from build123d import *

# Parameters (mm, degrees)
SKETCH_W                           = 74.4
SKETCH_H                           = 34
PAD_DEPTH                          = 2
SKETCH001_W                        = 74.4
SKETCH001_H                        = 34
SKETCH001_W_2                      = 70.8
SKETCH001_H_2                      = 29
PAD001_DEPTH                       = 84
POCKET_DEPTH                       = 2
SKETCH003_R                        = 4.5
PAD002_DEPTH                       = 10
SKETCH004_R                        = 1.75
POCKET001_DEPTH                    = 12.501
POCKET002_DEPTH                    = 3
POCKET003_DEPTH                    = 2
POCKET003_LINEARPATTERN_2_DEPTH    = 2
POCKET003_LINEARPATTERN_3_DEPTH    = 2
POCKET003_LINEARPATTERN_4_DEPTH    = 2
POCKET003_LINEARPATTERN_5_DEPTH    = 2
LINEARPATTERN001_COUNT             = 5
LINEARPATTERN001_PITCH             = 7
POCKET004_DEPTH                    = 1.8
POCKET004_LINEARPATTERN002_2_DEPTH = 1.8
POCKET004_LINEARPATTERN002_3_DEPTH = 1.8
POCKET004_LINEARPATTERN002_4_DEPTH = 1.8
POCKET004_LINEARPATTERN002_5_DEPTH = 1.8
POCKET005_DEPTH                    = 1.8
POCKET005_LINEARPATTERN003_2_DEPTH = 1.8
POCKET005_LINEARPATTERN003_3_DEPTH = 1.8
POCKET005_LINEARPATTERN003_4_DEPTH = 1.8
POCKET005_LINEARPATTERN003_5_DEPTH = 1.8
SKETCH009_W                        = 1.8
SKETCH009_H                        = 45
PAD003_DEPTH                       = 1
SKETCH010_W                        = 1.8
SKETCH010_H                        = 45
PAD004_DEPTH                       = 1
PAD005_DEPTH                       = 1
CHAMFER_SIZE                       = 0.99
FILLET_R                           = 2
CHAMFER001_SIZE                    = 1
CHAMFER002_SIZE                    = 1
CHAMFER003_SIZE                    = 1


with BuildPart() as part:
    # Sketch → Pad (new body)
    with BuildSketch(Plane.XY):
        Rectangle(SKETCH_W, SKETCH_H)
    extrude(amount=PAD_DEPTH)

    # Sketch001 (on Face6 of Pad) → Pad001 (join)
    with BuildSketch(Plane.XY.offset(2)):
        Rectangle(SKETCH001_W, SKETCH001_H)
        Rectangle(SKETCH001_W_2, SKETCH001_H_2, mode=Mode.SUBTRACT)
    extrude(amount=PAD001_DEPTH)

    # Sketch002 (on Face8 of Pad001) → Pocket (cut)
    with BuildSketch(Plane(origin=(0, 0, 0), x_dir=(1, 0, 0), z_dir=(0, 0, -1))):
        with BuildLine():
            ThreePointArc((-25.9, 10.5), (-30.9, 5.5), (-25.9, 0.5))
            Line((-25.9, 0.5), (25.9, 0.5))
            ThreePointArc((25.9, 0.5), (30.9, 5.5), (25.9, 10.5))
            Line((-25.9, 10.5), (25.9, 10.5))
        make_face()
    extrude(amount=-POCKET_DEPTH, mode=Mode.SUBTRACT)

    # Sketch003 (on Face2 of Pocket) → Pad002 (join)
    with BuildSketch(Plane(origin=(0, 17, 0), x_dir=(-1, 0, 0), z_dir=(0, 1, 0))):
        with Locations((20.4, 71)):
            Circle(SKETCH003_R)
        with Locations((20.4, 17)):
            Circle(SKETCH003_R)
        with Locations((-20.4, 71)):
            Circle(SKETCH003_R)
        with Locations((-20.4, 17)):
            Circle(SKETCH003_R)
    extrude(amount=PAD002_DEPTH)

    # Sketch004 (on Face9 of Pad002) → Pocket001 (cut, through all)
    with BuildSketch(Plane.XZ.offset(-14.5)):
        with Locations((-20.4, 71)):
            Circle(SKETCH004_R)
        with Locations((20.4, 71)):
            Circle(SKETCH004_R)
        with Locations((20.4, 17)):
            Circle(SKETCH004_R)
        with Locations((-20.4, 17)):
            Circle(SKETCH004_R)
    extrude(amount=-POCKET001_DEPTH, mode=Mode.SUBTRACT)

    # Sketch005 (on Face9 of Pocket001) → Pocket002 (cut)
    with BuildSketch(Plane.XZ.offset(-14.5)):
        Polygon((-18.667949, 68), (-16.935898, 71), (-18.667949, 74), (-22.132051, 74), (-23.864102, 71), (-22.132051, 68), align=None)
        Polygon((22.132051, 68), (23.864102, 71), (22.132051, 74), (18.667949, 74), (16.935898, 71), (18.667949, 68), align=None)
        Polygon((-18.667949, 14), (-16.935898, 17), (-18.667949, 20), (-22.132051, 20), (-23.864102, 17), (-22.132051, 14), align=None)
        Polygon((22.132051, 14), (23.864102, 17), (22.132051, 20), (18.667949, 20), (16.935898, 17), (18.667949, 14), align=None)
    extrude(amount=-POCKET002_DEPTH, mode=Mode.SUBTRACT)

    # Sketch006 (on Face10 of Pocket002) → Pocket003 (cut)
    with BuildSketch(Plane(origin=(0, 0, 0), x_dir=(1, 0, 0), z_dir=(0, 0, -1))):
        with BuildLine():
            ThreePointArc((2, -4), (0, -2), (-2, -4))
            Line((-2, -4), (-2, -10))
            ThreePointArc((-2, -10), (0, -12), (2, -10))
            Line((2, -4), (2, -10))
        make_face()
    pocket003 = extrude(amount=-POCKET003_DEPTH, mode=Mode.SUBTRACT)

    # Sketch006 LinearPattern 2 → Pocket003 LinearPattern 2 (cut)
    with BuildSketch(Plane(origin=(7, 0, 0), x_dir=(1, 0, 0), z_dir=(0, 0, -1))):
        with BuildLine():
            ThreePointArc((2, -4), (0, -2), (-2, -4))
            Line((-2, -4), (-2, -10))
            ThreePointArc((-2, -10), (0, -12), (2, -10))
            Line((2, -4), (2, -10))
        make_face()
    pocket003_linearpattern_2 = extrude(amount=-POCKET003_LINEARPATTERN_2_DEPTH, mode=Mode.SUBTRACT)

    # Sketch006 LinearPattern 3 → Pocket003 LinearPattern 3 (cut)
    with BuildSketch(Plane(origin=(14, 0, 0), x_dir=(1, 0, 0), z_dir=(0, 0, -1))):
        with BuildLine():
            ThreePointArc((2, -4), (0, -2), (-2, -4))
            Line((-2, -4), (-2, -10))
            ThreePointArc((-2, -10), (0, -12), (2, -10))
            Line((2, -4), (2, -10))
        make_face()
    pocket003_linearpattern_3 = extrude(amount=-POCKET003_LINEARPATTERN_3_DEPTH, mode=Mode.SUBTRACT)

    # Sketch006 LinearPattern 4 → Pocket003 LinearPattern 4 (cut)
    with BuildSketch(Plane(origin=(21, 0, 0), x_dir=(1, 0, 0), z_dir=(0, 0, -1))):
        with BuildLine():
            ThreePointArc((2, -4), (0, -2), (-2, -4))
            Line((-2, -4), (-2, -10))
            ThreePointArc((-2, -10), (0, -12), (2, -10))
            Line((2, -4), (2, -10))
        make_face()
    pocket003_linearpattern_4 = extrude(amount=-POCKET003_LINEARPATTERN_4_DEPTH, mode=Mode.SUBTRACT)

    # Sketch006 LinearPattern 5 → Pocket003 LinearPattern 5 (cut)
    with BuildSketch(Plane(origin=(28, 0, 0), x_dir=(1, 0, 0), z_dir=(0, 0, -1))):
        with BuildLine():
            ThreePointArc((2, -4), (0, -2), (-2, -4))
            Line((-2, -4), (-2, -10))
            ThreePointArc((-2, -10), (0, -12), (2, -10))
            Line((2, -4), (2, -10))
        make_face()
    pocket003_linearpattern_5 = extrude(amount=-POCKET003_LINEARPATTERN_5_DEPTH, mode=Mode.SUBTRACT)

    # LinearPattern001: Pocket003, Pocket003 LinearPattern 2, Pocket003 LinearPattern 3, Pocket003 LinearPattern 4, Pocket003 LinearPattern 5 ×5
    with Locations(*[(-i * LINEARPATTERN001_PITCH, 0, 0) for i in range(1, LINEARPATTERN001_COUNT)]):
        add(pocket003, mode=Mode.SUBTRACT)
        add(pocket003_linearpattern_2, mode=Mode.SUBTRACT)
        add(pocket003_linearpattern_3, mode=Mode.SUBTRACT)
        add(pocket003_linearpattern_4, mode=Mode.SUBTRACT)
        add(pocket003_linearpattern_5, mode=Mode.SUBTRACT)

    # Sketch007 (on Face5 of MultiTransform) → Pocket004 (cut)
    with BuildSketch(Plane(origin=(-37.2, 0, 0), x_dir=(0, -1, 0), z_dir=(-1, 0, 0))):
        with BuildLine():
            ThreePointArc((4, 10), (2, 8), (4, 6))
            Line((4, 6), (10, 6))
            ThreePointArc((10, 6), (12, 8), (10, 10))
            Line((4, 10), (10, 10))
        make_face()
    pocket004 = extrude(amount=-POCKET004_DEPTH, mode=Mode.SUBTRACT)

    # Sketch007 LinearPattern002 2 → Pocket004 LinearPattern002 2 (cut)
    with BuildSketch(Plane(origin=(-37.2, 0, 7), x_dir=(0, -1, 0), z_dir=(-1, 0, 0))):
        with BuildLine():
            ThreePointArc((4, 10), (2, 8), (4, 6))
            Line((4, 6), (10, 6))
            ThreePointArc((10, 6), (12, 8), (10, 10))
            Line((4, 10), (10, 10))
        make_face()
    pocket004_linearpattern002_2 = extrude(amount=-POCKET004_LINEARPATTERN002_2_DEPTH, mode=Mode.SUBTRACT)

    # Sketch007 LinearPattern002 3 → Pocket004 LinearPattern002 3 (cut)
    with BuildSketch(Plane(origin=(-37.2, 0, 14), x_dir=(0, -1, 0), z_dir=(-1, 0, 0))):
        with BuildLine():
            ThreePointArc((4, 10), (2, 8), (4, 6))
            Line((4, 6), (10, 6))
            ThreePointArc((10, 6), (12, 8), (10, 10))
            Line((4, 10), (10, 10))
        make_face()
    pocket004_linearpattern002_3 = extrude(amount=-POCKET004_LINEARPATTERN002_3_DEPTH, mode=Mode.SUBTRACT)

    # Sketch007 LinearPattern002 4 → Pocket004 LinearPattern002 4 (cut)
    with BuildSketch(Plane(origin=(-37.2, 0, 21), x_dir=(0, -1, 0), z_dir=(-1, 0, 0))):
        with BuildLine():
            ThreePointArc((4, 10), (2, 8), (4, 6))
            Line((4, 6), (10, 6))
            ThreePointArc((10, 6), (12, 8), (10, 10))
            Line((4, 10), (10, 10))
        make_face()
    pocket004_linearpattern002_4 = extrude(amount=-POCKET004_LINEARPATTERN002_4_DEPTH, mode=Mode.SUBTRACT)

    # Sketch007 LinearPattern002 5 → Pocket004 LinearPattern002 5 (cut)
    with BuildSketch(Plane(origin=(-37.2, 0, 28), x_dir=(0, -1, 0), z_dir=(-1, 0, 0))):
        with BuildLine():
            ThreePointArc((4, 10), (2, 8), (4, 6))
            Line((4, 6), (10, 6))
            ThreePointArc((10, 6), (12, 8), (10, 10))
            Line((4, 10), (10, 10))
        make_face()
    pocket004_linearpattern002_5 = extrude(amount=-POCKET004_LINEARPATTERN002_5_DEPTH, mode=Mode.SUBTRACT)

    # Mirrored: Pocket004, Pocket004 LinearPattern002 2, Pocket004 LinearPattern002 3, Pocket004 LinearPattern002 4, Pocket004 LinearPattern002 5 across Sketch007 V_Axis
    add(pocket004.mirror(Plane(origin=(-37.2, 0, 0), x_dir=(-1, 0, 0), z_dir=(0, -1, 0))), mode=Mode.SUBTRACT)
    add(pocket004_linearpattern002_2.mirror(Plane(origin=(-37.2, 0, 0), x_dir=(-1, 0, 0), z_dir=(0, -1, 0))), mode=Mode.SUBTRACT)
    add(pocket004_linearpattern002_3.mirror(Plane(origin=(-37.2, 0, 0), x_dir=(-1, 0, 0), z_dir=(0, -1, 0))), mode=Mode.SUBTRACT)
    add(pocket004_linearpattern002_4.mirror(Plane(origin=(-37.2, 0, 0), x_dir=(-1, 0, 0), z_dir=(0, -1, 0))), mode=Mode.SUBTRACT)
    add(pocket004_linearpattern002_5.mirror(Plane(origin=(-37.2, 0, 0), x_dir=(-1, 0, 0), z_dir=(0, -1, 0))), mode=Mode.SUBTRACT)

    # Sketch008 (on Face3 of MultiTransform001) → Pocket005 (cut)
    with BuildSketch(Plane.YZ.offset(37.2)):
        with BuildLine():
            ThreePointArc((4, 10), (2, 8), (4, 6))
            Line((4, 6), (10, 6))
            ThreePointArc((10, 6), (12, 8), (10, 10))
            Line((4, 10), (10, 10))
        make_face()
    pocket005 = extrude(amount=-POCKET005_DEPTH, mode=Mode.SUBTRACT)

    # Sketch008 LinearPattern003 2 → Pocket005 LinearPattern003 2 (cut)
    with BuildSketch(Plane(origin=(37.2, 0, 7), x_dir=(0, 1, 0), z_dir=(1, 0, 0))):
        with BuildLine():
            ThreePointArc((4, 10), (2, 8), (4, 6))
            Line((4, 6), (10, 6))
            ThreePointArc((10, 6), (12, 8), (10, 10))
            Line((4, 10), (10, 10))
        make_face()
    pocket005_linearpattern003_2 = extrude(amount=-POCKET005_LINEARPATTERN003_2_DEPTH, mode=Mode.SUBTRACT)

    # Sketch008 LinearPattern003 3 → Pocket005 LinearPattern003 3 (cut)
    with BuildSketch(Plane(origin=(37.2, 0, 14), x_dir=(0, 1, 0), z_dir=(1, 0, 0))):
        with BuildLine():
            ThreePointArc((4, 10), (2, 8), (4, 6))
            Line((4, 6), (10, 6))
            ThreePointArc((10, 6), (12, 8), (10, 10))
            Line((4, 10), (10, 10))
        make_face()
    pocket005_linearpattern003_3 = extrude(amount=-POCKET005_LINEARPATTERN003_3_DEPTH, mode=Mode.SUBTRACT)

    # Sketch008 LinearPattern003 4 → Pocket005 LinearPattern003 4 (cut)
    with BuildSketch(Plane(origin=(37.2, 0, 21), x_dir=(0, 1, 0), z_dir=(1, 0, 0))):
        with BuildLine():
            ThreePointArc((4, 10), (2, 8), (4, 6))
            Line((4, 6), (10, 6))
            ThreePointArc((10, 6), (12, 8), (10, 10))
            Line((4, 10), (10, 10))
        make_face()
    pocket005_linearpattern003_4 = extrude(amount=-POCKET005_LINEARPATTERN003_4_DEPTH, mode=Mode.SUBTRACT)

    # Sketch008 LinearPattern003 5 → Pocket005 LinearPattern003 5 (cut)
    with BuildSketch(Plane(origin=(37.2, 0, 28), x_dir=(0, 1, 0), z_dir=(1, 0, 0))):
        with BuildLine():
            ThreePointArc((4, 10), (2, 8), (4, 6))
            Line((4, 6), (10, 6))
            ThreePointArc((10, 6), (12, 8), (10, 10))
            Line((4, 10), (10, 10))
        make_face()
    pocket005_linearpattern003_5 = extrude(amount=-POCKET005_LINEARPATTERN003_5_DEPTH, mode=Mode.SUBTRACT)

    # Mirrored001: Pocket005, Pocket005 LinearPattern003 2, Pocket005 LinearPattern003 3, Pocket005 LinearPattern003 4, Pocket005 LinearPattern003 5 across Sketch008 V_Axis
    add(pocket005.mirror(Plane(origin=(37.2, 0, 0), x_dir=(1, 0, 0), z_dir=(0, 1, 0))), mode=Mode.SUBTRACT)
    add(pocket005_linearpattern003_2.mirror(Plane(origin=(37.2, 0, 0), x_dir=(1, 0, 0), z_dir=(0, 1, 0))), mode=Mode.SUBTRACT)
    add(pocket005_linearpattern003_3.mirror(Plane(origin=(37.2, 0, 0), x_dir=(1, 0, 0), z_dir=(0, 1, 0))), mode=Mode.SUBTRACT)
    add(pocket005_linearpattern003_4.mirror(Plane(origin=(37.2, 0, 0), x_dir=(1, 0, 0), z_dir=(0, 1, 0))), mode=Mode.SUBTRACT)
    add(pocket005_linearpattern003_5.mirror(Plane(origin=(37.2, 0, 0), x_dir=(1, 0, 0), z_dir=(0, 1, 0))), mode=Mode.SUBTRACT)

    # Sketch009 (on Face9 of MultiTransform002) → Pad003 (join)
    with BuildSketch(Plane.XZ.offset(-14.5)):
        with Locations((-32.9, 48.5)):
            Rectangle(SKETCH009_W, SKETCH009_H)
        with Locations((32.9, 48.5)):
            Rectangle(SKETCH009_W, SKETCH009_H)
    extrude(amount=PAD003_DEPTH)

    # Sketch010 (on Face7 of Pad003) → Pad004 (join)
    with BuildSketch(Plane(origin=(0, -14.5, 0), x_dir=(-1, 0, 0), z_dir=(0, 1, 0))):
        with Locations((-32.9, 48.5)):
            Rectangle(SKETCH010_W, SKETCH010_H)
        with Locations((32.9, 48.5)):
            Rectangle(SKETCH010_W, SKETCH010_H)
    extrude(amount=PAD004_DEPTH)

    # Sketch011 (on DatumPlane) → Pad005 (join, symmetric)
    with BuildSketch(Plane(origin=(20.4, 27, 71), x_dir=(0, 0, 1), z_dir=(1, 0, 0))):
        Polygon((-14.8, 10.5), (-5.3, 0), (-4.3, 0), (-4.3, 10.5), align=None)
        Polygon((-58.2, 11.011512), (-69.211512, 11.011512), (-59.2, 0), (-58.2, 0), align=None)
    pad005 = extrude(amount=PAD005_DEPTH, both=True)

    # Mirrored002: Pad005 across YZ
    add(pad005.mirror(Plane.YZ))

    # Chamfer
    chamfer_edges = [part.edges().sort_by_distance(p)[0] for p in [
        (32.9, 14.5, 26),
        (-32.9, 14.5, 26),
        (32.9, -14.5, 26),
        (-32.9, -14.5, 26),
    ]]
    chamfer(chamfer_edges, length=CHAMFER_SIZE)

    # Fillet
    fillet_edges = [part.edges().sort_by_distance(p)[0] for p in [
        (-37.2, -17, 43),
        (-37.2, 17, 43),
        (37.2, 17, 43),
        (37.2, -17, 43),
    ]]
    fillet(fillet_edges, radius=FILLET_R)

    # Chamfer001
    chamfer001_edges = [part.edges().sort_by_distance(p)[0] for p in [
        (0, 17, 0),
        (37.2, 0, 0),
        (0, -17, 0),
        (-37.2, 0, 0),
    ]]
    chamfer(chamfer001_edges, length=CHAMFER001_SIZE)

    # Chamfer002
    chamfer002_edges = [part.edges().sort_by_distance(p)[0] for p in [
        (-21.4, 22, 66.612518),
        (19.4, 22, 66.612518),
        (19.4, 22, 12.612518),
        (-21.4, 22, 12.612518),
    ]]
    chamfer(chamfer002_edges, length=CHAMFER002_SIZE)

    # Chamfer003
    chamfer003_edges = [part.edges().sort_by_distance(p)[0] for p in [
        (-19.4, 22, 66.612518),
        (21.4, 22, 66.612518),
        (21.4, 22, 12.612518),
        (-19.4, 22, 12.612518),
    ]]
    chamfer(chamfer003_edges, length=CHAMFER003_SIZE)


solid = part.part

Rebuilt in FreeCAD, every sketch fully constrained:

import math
import FreeCAD as App
import Part
import Sketcher

V = App.Vector
Q = App.Units.Quantity


def edges_at(feature, points):
    """Names of the edges that pass closest to the given points."""
    edges = feature.Shape.Edges
    near = lambda p: min(range(len(edges)), key=lambda i: edges[i].distToShape(Part.Vertex(*p))[0])
    return sorted({f"Edge{near(p) + 1}" for p in points})


def add_polygon(sketch, points):
    """Adds a closed chain of lines whose ends are joined by coincident constraints."""
    first, n = sketch.GeometryCount, len(points)
    for a, b in zip(points, points[1:] + points[:1]):
        sketch.addGeometry(Part.LineSegment(App.Vector(*a, 0), App.Vector(*b, 0)), False)
    for i in range(n):
        sketch.addConstraint(Sketcher.Constraint("Coincident", first + i, 2, first + (i + 1) % n, 1))

doc = App.newDocument("Part")
body = doc.addObject("PartDesign::Body", "Body")

# Sketch on XY plane
sketch1 = body.newObject("Sketcher::SketchObject", "Sketch")
sketch1.AttachmentSupport = (doc.getObject("XY_Plane"), [""])
sketch1.MapMode = "FlatFace"
add_polygon(sketch1, [(-37, 17), (-37, -17), (37, -17), (37, 17)])  # lines 0-3
sketch1.addConstraint([
    Sketcher.Constraint("Vertical", 0),
    Sketcher.Constraint("Horizontal", 1),
    Sketcher.Constraint("Vertical", 2),
    Sketcher.Constraint("Horizontal", 3),
    Sketcher.Constraint("Symmetric", 0, 2, 2, 2, -1, 1),
    Sketcher.Constraint("DistanceY", 0, 2, 0, 1, 34.0),
    Sketcher.Constraint("DistanceX", 1, 1, 1, 2, 74.4),
])
pad1 = body.newObject("PartDesign::Pad", "Pad")
pad1.Profile = sketch1
pad1.Length = 2

# Sketch on XY plane
sketch2 = body.newObject("Sketcher::SketchObject", "Sketch001")
sketch2.AttachmentSupport = (doc.getObject("XY_Plane"), [""])
sketch2.MapMode = "FlatFace"
sketch2.AttachmentOffset = App.Placement(V(0, 0, 2), App.Rotation())
add_polygon(sketch2, [(-37, 17), (-37, -17), (37, -17), (37, 17)])  # lines 0-3
add_polygon(sketch2, [(35, -14), (-35, -14), (-35, 14), (35, 14)])  # lines 4-7
sketch2.addConstraint([
    Sketcher.Constraint("Vertical", 0),
    Sketcher.Constraint("Horizontal", 1),
    Sketcher.Constraint("Vertical", 2),
    Sketcher.Constraint("Horizontal", 3),
    Sketcher.Constraint("Horizontal", 4),
    Sketcher.Constraint("Vertical", 5),
    Sketcher.Constraint("Horizontal", 6),
    Sketcher.Constraint("Vertical", 7),
    Sketcher.Constraint("Symmetric", 0, 2, 2, 2, -1, 1),
    Sketcher.Constraint("Symmetric", 4, 2, 6, 2, -1, 1),
    Sketcher.Constraint("DistanceY", 0, 2, 0, 1, 34.0),
    Sketcher.Constraint("DistanceY", 5, 1, 5, 2, 29.0),
    Sketcher.Constraint("DistanceX", 1, 1, 1, 2, 74.4),
    Sketcher.Constraint("DistanceX", 4, 2, 4, 1, 70.8),
])
pad2 = body.newObject("PartDesign::Pad", "Pad001")
pad2.Profile = sketch2
pad2.Length = 84

# Sketch on XY plane
sketch3 = body.newObject("Sketcher::SketchObject", "Sketch002")
sketch3.AttachmentSupport = (doc.getObject("XY_Plane"), [""])
sketch3.MapMode = "FlatFace"
sketch3.addGeometry([
    Part.ArcOfCircle(Part.Circle(V(-26, -6, 0), V(0, 0, 1), 5), math.radians(90), math.radians(270)),
    Part.LineSegment(V(-26, 0, 0), V(26, 0, 0)),
    Part.ArcOfCircle(Part.Circle(V(26, -6, 0), V(0, 0, 1), 5), math.radians(-90), math.radians(90)),
    Part.LineSegment(V(26, -10, 0), V(-26, -10, 0)),
], False)
sketch3.addConstraint([
    Sketcher.Constraint("Tangent", 0, 1, 1, 1),
    Sketcher.Constraint("Tangent", 1, 2, 2, 2),
    Sketcher.Constraint("Tangent", 2, 1, 3, 1),
    Sketcher.Constraint("Tangent", 3, 2, 0, 2),
    Sketcher.Constraint("Horizontal", 1),
    Sketcher.Constraint("Horizontal", 3),
    Sketcher.Constraint("Radius", 0, 5.0),
    Sketcher.Constraint("DistanceX", 1, 1, 1, 2, 51.8),
    Sketcher.Constraint("DistanceX", 0, 3, -1, 1, 25.9),
    Sketcher.Constraint("DistanceY", 0, 3, -1, 1, 5.5),
])
pocket1 = body.newObject("PartDesign::Pocket", "Pocket")
pocket1.Profile = sketch3
pocket1.Length = 2
pocket1.Reversed = True

# Sketch on XZ plane
sketch4 = body.newObject("Sketcher::SketchObject", "Sketch003")
sketch4.AttachmentSupport = (doc.getObject("XZ_Plane"), [""])
sketch4.MapMode = "FlatFace"
sketch4.AttachmentOffset = App.Placement(V(0, 0, -17), App.Rotation())
sketch4.addGeometry([
    Part.Circle(V(-20.4, 71, 0), V(0, 0, 1), 4.5),
    Part.Circle(V(-20.4, 17, 0), V(0, 0, 1), 4.5),
    Part.Circle(V(20.4, 71, 0), V(0, 0, 1), 4.5),
    Part.Circle(V(20.4, 17, 0), V(0, 0, 1), 4.5),
], False)
sketch4.addConstraint([
    Sketcher.Constraint("Equal", 0, 1),
    Sketcher.Constraint("Equal", 1, 2),
    Sketcher.Constraint("Equal", 2, 3),
    Sketcher.Constraint("Symmetric", 0, 3, 2, 3, -2),
    Sketcher.Constraint("Symmetric", 1, 3, 3, 3, -2),
    Sketcher.Constraint("Vertical", 0, 3, 1, 3),
    Sketcher.Constraint("Diameter", 0, 9.0),
    Sketcher.Constraint("DistanceY", -1, 1, 0, 3, 71.0),
    Sketcher.Constraint("DistanceY", -1, 1, 1, 3, 17.0),
    Sketcher.Constraint("DistanceX", 0, 3, -1, 1, 20.4),
])
pad3 = body.newObject("PartDesign::Pad", "Pad002")
pad3.Profile = sketch4
pad3.Length = 10
pad3.Reversed = True

# Sketch on XZ plane
sketch5 = body.newObject("Sketcher::SketchObject", "Sketch004")
sketch5.AttachmentSupport = (doc.getObject("XZ_Plane"), [""])
sketch5.MapMode = "FlatFace"
sketch5.AttachmentOffset = App.Placement(V(0, 0, -14.5), App.Rotation())
sketch5.addGeometry([
    Part.Circle(V(-20.4, 71, 0), V(0, 0, 1), 1.8),
    Part.Circle(V(20.4, 71, 0), V(0, 0, 1), 1.8),
    Part.Circle(V(20.4, 17, 0), V(0, 0, 1), 1.8),
    Part.Circle(V(-20.4, 17, 0), V(0, 0, 1), 1.8),
], False)
sketch5.addConstraint([
    Sketcher.Constraint("Equal", 0, 1),
    Sketcher.Constraint("Equal", 1, 2),
    Sketcher.Constraint("Equal", 2, 3),
    Sketcher.Constraint("Symmetric", 0, 3, 1, 3, -2),
    Sketcher.Constraint("Symmetric", 2, 3, 3, 3, -2),
    Sketcher.Constraint("Vertical", 1, 3, 2, 3),
    Sketcher.Constraint("Diameter", 0, 3.5),
    Sketcher.Constraint("DistanceY", -1, 1, 0, 3, 71.0),
    Sketcher.Constraint("DistanceY", -1, 1, 2, 3, 17.0),
    Sketcher.Constraint("DistanceX", 0, 3, -1, 1, 20.4),
])
pocket2 = body.newObject("PartDesign::Pocket", "Pocket001")
pocket2.Profile = sketch5
pocket2.Type = "ThroughAll"

# Sketch on XZ plane
sketch6 = body.newObject("Sketcher::SketchObject", "Sketch005")
sketch6.AttachmentSupport = (doc.getObject("XZ_Plane"), [""])
sketch6.MapMode = "FlatFace"
sketch6.AttachmentOffset = App.Placement(V(0, 0, -14.5), App.Rotation())
add_polygon(sketch6, [(-18.7, 68), (-16.9, 71), (-18.7, 74), (-22.1, 74), (-23.9, 71), (-22.1, 68)])  # lines 0-5
add_polygon(sketch6, [(22.1, 68), (23.9, 71), (22.1, 74), (18.7, 74), (16.9, 71), (18.7, 68)])  # lines 6-11
add_polygon(sketch6, [(-18.7, 14), (-16.9, 17), (-18.7, 20), (-22.1, 20), (-23.9, 17), (-22.1, 14)])  # lines 12-17
add_polygon(sketch6, [(22.1, 14), (23.9, 17), (22.1, 20), (18.7, 20), (16.9, 17), (18.7, 14)])  # lines 18-23
sketch6.addConstraint([
    Sketcher.Constraint("Horizontal", 2),
    Sketcher.Constraint("Horizontal", 5),
    Sketcher.Constraint("Horizontal", 8),
    Sketcher.Constraint("Horizontal", 11),
    Sketcher.Constraint("Horizontal", 14),
    Sketcher.Constraint("Horizontal", 17),
    Sketcher.Constraint("Horizontal", 20),
    Sketcher.Constraint("Horizontal", 23),
    Sketcher.Constraint("Symmetric", 3, 2, 6, 2, -2),
    Sketcher.Constraint("Symmetric", 2, 2, 7, 2, -2),
    Sketcher.Constraint("Symmetric", 0, 2, 9, 2, -2),
    Sketcher.Constraint("Symmetric", 5, 2, 10, 2, -2),
    Sketcher.Constraint("Symmetric", 15, 2, 18, 2, -2),
    Sketcher.Constraint("Symmetric", 14, 2, 19, 2, -2),
    Sketcher.Constraint("Symmetric", 12, 2, 21, 2, -2),
    Sketcher.Constraint("Symmetric", 17, 2, 22, 2, -2),
    Sketcher.Constraint("Parallel", 0, 3),
    Sketcher.Constraint("Parallel", 1, 4),
    Sketcher.Constraint("Parallel", 3, 6),
    Sketcher.Constraint("Parallel", 4, 7),
    Sketcher.Constraint("Parallel", 6, 9),
    Sketcher.Constraint("Parallel", 9, 12),
    Sketcher.Constraint("Parallel", 10, 13),
    Sketcher.Constraint("Parallel", 12, 15),
    Sketcher.Constraint("Parallel", 13, 16),
    Sketcher.Constraint("Parallel", 15, 18),
    Sketcher.Constraint("Parallel", 18, 21),
    Sketcher.Constraint("Horizontal", 0, 2, 3, 2),
    Sketcher.Constraint("Horizontal", 12, 2, 15, 2),
    Sketcher.Constraint("Vertical", 2, 2, 4, 2),
    Sketcher.Constraint("Vertical", 0, 2, 12, 2),
    Sketcher.Constraint("Vertical", 5, 2, 13, 2),
    Sketcher.Constraint("Vertical", 4, 2, 14, 2),
    Sketcher.Constraint("Vertical", 14, 2, 16, 2),
    Sketcher.Constraint("Angle", 0, Q("59.999997 deg")),
    Sketcher.Constraint("DistanceY", -1, 1, 0, 2, 71.0),
    Sketcher.Constraint("DistanceY", -1, 1, 1, 2, 74.0),
    Sketcher.Constraint("DistanceY", -1, 1, 12, 2, 17.0),
    Sketcher.Constraint("DistanceX", 0, 2, 6, 2, 40.8),
    Sketcher.Constraint("DistanceX", 0, 2, -1, 1, 16.935898),
])
pocket3 = body.newObject("PartDesign::Pocket", "Pocket002")
pocket3.Profile = sketch6
pocket3.Length = 3

# Sketch on XY plane
sketch7 = body.newObject("Sketcher::SketchObject", "Sketch006")
sketch7.AttachmentSupport = (doc.getObject("XY_Plane"), [""])
sketch7.MapMode = "FlatFace"
sketch7.addGeometry([
    Part.ArcOfCircle(Part.Circle(V(0, 4, 0), V(0, 0, 1), 2), math.radians(180), math.radians(360)),
    Part.LineSegment(V(-2, 4, 0), V(-2, 10, 0)),
    Part.ArcOfCircle(Part.Circle(V(0, 10, 0), V(0, 0, 1), 2), math.radians(0), math.radians(180)),
    Part.LineSegment(V(2, 10, 0), V(2, 4, 0)),
], False)
sketch7.addConstraint([
    Sketcher.Constraint("Tangent", 0, 1, 1, 1),
    Sketcher.Constraint("Tangent", 1, 2, 2, 2),
    Sketcher.Constraint("Tangent", 2, 1, 3, 1),
    Sketcher.Constraint("Tangent", 3, 2, 0, 2),
    Sketcher.Constraint("Vertical", 1),
    Sketcher.Constraint("Vertical", 3),
    Sketcher.Constraint("PointOnObject", 0, 3, -2),
    Sketcher.Constraint("Radius", 0, 2.0),
    Sketcher.Constraint("DistanceY", 1, 1, 1, 2, 6.0),
    Sketcher.Constraint("DistanceY", -1, 1, 0, 3, 4.0),
])
pocket4 = body.newObject("PartDesign::Pocket", "Pocket003")
pocket4.Profile = sketch7
pocket4.Length = 2
pocket4.Reversed = True

# Sketch on XY plane
sketch8 = body.newObject("Sketcher::SketchObject", "Sketch007")
sketch8.AttachmentSupport = (doc.getObject("XY_Plane"), [""])
sketch8.MapMode = "FlatFace"
sketch8.addGeometry([
    Part.ArcOfCircle(Part.Circle(V(7, 4, 0), V(0, 0, 1), 2), math.radians(180), math.radians(360)),
    Part.LineSegment(V(5, 4, 0), V(5, 10, 0)),
    Part.ArcOfCircle(Part.Circle(V(7, 10, 0), V(0, 0, 1), 2), math.radians(0), math.radians(180)),
    Part.LineSegment(V(9, 10, 0), V(9, 4, 0)),
], False)
sketch8.addConstraint([
    Sketcher.Constraint("Tangent", 0, 1, 1, 1),
    Sketcher.Constraint("Tangent", 1, 2, 2, 2),
    Sketcher.Constraint("Tangent", 2, 1, 3, 1),
    Sketcher.Constraint("Tangent", 3, 2, 0, 2),
    Sketcher.Constraint("Vertical", 1),
    Sketcher.Constraint("Vertical", 3),
    Sketcher.Constraint("Radius", 0, 2.0),
    Sketcher.Constraint("DistanceY", 1, 1, 1, 2, 6.0),
    Sketcher.Constraint("DistanceX", -1, 1, 0, 3, 7.0),
    Sketcher.Constraint("DistanceY", -1, 1, 0, 3, 4.0),
])
pocket5 = body.newObject("PartDesign::Pocket", "Pocket004")
pocket5.Profile = sketch8
pocket5.Length = 2
pocket5.Reversed = True

# Sketch on XY plane
sketch9 = body.newObject("Sketcher::SketchObject", "Sketch008")
sketch9.AttachmentSupport = (doc.getObject("XY_Plane"), [""])
sketch9.MapMode = "FlatFace"
sketch9.addGeometry([
    Part.ArcOfCircle(Part.Circle(V(14, 4, 0), V(0, 0, 1), 2), math.radians(180), math.radians(360)),
    Part.LineSegment(V(12, 4, 0), V(12, 10, 0)),
    Part.ArcOfCircle(Part.Circle(V(14, 10, 0), V(0, 0, 1), 2), math.radians(0), math.radians(180)),
    Part.LineSegment(V(16, 10, 0), V(16, 4, 0)),
], False)
sketch9.addConstraint([
    Sketcher.Constraint("Tangent", 0, 1, 1, 1),
    Sketcher.Constraint("Tangent", 1, 2, 2, 2),
    Sketcher.Constraint("Tangent", 2, 1, 3, 1),
    Sketcher.Constraint("Tangent", 3, 2, 0, 2),
    Sketcher.Constraint("Vertical", 1),
    Sketcher.Constraint("Vertical", 3),
    Sketcher.Constraint("Radius", 0, 2.0),
    Sketcher.Constraint("DistanceY", 1, 1, 1, 2, 6.0),
    Sketcher.Constraint("DistanceX", -1, 1, 0, 3, 14.0),
    Sketcher.Constraint("DistanceY", -1, 1, 0, 3, 4.0),
])
pocket6 = body.newObject("PartDesign::Pocket", "Pocket005")
pocket6.Profile = sketch9
pocket6.Length = 2
pocket6.Reversed = True

# Sketch on XY plane
sketch10 = body.newObject("Sketcher::SketchObject", "Sketch009")
sketch10.AttachmentSupport = (doc.getObject("XY_Plane"), [""])
sketch10.MapMode = "FlatFace"
sketch10.addGeometry([
    Part.ArcOfCircle(Part.Circle(V(21, 4, 0), V(0, 0, 1), 2), math.radians(180), math.radians(360)),
    Part.LineSegment(V(19, 4, 0), V(19, 10, 0)),
    Part.ArcOfCircle(Part.Circle(V(21, 10, 0), V(0, 0, 1), 2), math.radians(0), math.radians(180)),
    Part.LineSegment(V(23, 10, 0), V(23, 4, 0)),
], False)
sketch10.addConstraint([
    Sketcher.Constraint("Tangent", 0, 1, 1, 1),
    Sketcher.Constraint("Tangent", 1, 2, 2, 2),
    Sketcher.Constraint("Tangent", 2, 1, 3, 1),
    Sketcher.Constraint("Tangent", 3, 2, 0, 2),
    Sketcher.Constraint("Vertical", 1),
    Sketcher.Constraint("Vertical", 3),
    Sketcher.Constraint("Radius", 0, 2.0),
    Sketcher.Constraint("DistanceY", 1, 1, 1, 2, 6.0),
    Sketcher.Constraint("DistanceX", -1, 1, 0, 3, 21.0),
    Sketcher.Constraint("DistanceY", -1, 1, 0, 3, 4.0),
])
pocket7 = body.newObject("PartDesign::Pocket", "Pocket006")
pocket7.Profile = sketch10
pocket7.Length = 2
pocket7.Reversed = True

# Sketch on XY plane
sketch11 = body.newObject("Sketcher::SketchObject", "Sketch010")
sketch11.AttachmentSupport = (doc.getObject("XY_Plane"), [""])
sketch11.MapMode = "FlatFace"
sketch11.addGeometry([
    Part.ArcOfCircle(Part.Circle(V(28, 4, 0), V(0, 0, 1), 2), math.radians(180), math.radians(360)),
    Part.LineSegment(V(26, 4, 0), V(26, 10, 0)),
    Part.ArcOfCircle(Part.Circle(V(28, 10, 0), V(0, 0, 1), 2), math.radians(0), math.radians(180)),
    Part.LineSegment(V(30, 10, 0), V(30, 4, 0)),
], False)
sketch11.addConstraint([
    Sketcher.Constraint("Tangent", 0, 1, 1, 1),
    Sketcher.Constraint("Tangent", 1, 2, 2, 2),
    Sketcher.Constraint("Tangent", 2, 1, 3, 1),
    Sketcher.Constraint("Tangent", 3, 2, 0, 2),
    Sketcher.Constraint("Vertical", 1),
    Sketcher.Constraint("Vertical", 3),
    Sketcher.Constraint("Radius", 0, 2.0),
    Sketcher.Constraint("DistanceY", 1, 1, 1, 2, 6.0),
    Sketcher.Constraint("DistanceX", -1, 1, 0, 3, 28.0),
    Sketcher.Constraint("DistanceY", -1, 1, 0, 3, 4.0),
])
pocket8 = body.newObject("PartDesign::Pocket", "Pocket007")
pocket8.Profile = sketch11
pocket8.Length = 2
pocket8.Reversed = True
doc.recompute()

linearpattern = body.newObject("PartDesign::LinearPattern", "LinearPattern")
linearpattern.Originals = [pocket4, pocket5, pocket6, pocket7, pocket8]
linearpattern.Direction = (doc.getObject("X_Axis"), [""])
linearpattern.Mode = "offset"
linearpattern.Offset = 7
linearpattern.Occurrences = 5
linearpattern.Reversed = True
body.Tip = linearpattern

# Sketch on YZ plane
sketch12 = body.newObject("Sketcher::SketchObject", "Sketch011")
sketch12.AttachmentSupport = (doc.getObject("YZ_Plane"), [""])
sketch12.MapMode = "FlatFace"
sketch12.AttachmentOffset = App.Placement(V(0, 0, -37.2), App.Rotation())
sketch12.addGeometry([
    Part.ArcOfCircle(Part.Circle(V(-4, 8, 0), V(0, 0, 1), 2), math.radians(-90), math.radians(90)),
    Part.LineSegment(V(-4, 6, 0), V(-10, 6, 0)),
    Part.ArcOfCircle(Part.Circle(V(-10, 8, 0), V(0, 0, 1), 2), math.radians(90), math.radians(270)),
    Part.LineSegment(V(-10, 10, 0), V(-4, 10, 0)),
], False)
sketch12.addConstraint([
    Sketcher.Constraint("Tangent", 0, 1, 1, 1),
    Sketcher.Constraint("Tangent", 1, 2, 2, 2),
    Sketcher.Constraint("Tangent", 2, 1, 3, 1),
    Sketcher.Constraint("Tangent", 3, 2, 0, 2),
    Sketcher.Constraint("Horizontal", 1),
    Sketcher.Constraint("Horizontal", 3),
    Sketcher.Constraint("Radius", 0, 2.0),
    Sketcher.Constraint("DistanceX", 1, 2, 1, 1, 6.0),
    Sketcher.Constraint("DistanceX", 0, 3, -1, 1, 4.0),
    Sketcher.Constraint("DistanceY", -1, 1, 0, 3, 8.0),
])
pocket9 = body.newObject("PartDesign::Pocket", "Pocket008")
pocket9.Profile = sketch12
pocket9.Length = 1.8
pocket9.Reversed = True

# Sketch on YZ plane
sketch13 = body.newObject("Sketcher::SketchObject", "Sketch012")
sketch13.AttachmentSupport = (doc.getObject("YZ_Plane"), [""])
sketch13.MapMode = "FlatFace"
sketch13.AttachmentOffset = App.Placement(V(0, 0, -37.2), App.Rotation())
sketch13.addGeometry([
    Part.ArcOfCircle(Part.Circle(V(-4, 15, 0), V(0, 0, 1), 2), math.radians(-90), math.radians(90)),
    Part.LineSegment(V(-4, 13, 0), V(-10, 13, 0)),
    Part.ArcOfCircle(Part.Circle(V(-10, 15, 0), V(0, 0, 1), 2), math.radians(90), math.radians(270)),
    Part.LineSegment(V(-10, 17, 0), V(-4, 17, 0)),
], False)
sketch13.addConstraint([
    Sketcher.Constraint("Tangent", 0, 1, 1, 1),
    Sketcher.Constraint("Tangent", 1, 2, 2, 2),
    Sketcher.Constraint("Tangent", 2, 1, 3, 1),
    Sketcher.Constraint("Tangent", 3, 2, 0, 2),
    Sketcher.Constraint("Horizontal", 1),
    Sketcher.Constraint("Horizontal", 3),
    Sketcher.Constraint("Radius", 0, 2.0),
    Sketcher.Constraint("DistanceX", 1, 2, 1, 1, 6.0),
    Sketcher.Constraint("DistanceX", 0, 3, -1, 1, 4.0),
    Sketcher.Constraint("DistanceY", -1, 1, 0, 3, 15.0),
])
pocket10 = body.newObject("PartDesign::Pocket", "Pocket009")
pocket10.Profile = sketch13
pocket10.Length = 1.8
pocket10.Reversed = True

# Sketch on YZ plane
sketch14 = body.newObject("Sketcher::SketchObject", "Sketch013")
sketch14.AttachmentSupport = (doc.getObject("YZ_Plane"), [""])
sketch14.MapMode = "FlatFace"
sketch14.AttachmentOffset = App.Placement(V(0, 0, -37.2), App.Rotation())
sketch14.addGeometry([
    Part.ArcOfCircle(Part.Circle(V(-4, 22, 0), V(0, 0, 1), 2), math.radians(-90), math.radians(90)),
    Part.LineSegment(V(-4, 20, 0), V(-10, 20, 0)),
    Part.ArcOfCircle(Part.Circle(V(-10, 22, 0), V(0, 0, 1), 2), math.radians(90), math.radians(270)),
    Part.LineSegment(V(-10, 24, 0), V(-4, 24, 0)),
], False)
sketch14.addConstraint([
    Sketcher.Constraint("Tangent", 0, 1, 1, 1),
    Sketcher.Constraint("Tangent", 1, 2, 2, 2),
    Sketcher.Constraint("Tangent", 2, 1, 3, 1),
    Sketcher.Constraint("Tangent", 3, 2, 0, 2),
    Sketcher.Constraint("Horizontal", 1),
    Sketcher.Constraint("Horizontal", 3),
    Sketcher.Constraint("Radius", 0, 2.0),
    Sketcher.Constraint("DistanceX", 1, 2, 1, 1, 6.0),
    Sketcher.Constraint("DistanceX", 0, 3, -1, 1, 4.0),
    Sketcher.Constraint("DistanceY", -1, 1, 0, 3, 22.0),
])
pocket11 = body.newObject("PartDesign::Pocket", "Pocket010")
pocket11.Profile = sketch14
pocket11.Length = 1.8
pocket11.Reversed = True

# Sketch on YZ plane
sketch15 = body.newObject("Sketcher::SketchObject", "Sketch014")
sketch15.AttachmentSupport = (doc.getObject("YZ_Plane"), [""])
sketch15.MapMode = "FlatFace"
sketch15.AttachmentOffset = App.Placement(V(0, 0, -37.2), App.Rotation())
sketch15.addGeometry([
    Part.ArcOfCircle(Part.Circle(V(-4, 29, 0), V(0, 0, 1), 2), math.radians(-90), math.radians(90)),
    Part.LineSegment(V(-4, 27, 0), V(-10, 27, 0)),
    Part.ArcOfCircle(Part.Circle(V(-10, 29, 0), V(0, 0, 1), 2), math.radians(90), math.radians(270)),
    Part.LineSegment(V(-10, 31, 0), V(-4, 31, 0)),
], False)
sketch15.addConstraint([
    Sketcher.Constraint("Tangent", 0, 1, 1, 1),
    Sketcher.Constraint("Tangent", 1, 2, 2, 2),
    Sketcher.Constraint("Tangent", 2, 1, 3, 1),
    Sketcher.Constraint("Tangent", 3, 2, 0, 2),
    Sketcher.Constraint("Horizontal", 1),
    Sketcher.Constraint("Horizontal", 3),
    Sketcher.Constraint("Radius", 0, 2.0),
    Sketcher.Constraint("DistanceX", 1, 2, 1, 1, 6.0),
    Sketcher.Constraint("DistanceX", 0, 3, -1, 1, 4.0),
    Sketcher.Constraint("DistanceY", -1, 1, 0, 3, 29.0),
])
pocket12 = body.newObject("PartDesign::Pocket", "Pocket011")
pocket12.Profile = sketch15
pocket12.Length = 1.8
pocket12.Reversed = True

# Sketch on YZ plane
sketch16 = body.newObject("Sketcher::SketchObject", "Sketch015")
sketch16.AttachmentSupport = (doc.getObject("YZ_Plane"), [""])
sketch16.MapMode = "FlatFace"
sketch16.AttachmentOffset = App.Placement(V(0, 0, -37.2), App.Rotation())
sketch16.addGeometry([
    Part.ArcOfCircle(Part.Circle(V(-4, 36, 0), V(0, 0, 1), 2), math.radians(-90), math.radians(90)),
    Part.LineSegment(V(-4, 34, 0), V(-10, 34, 0)),
    Part.ArcOfCircle(Part.Circle(V(-10, 36, 0), V(0, 0, 1), 2), math.radians(90), math.radians(270)),
    Part.LineSegment(V(-10, 38, 0), V(-4, 38, 0)),
], False)
sketch16.addConstraint([
    Sketcher.Constraint("Tangent", 0, 1, 1, 1),
    Sketcher.Constraint("Tangent", 1, 2, 2, 2),
    Sketcher.Constraint("Tangent", 2, 1, 3, 1),
    Sketcher.Constraint("Tangent", 3, 2, 0, 2),
    Sketcher.Constraint("Horizontal", 1),
    Sketcher.Constraint("Horizontal", 3),
    Sketcher.Constraint("Radius", 0, 2.0),
    Sketcher.Constraint("DistanceX", 1, 2, 1, 1, 6.0),
    Sketcher.Constraint("DistanceX", 0, 3, -1, 1, 4.0),
    Sketcher.Constraint("DistanceY", -1, 1, 0, 3, 36.0),
])
pocket13 = body.newObject("PartDesign::Pocket", "Pocket012")
pocket13.Profile = sketch16
pocket13.Length = 1.8
pocket13.Reversed = True
doc.recompute()

mirrored = body.newObject("PartDesign::Mirrored", "Mirrored")
mirrored.Originals = [pocket9, pocket10, pocket11, pocket12, pocket13]
mirrored.MirrorPlane = (doc.getObject("XZ_Plane"), [""])
body.Tip = mirrored

# Sketch on YZ plane
sketch17 = body.newObject("Sketcher::SketchObject", "Sketch016")
sketch17.AttachmentSupport = (doc.getObject("YZ_Plane"), [""])
sketch17.MapMode = "FlatFace"
sketch17.AttachmentOffset = App.Placement(V(0, 0, 37.2), App.Rotation())
sketch17.addGeometry([
    Part.ArcOfCircle(Part.Circle(V(4, 8, 0), V(0, 0, 1), 2), math.radians(90), math.radians(270)),
    Part.LineSegment(V(4, 6, 0), V(10, 6, 0)),
    Part.ArcOfCircle(Part.Circle(V(10, 8, 0), V(0, 0, 1), 2), math.radians(-90), math.radians(90)),
    Part.LineSegment(V(10, 10, 0), V(4, 10, 0)),
], False)
sketch17.addConstraint([
    Sketcher.Constraint("Tangent", 0, 2, 1, 1),
    Sketcher.Constraint("Tangent", 1, 2, 2, 1),
    Sketcher.Constraint("Tangent", 2, 2, 3, 1),
    Sketcher.Constraint("Tangent", 3, 2, 0, 1),
    Sketcher.Constraint("Horizontal", 1),
    Sketcher.Constraint("Horizontal", 3),
    Sketcher.Constraint("Radius", 0, 2.0),
    Sketcher.Constraint("DistanceX", 1, 1, 1, 2, 6.0),
    Sketcher.Constraint("DistanceX", -1, 1, 0, 3, 4.0),
    Sketcher.Constraint("DistanceY", -1, 1, 0, 3, 8.0),
])
pocket14 = body.newObject("PartDesign::Pocket", "Pocket013")
pocket14.Profile = sketch17
pocket14.Length = 1.8

# Sketch on YZ plane
sketch18 = body.newObject("Sketcher::SketchObject", "Sketch017")
sketch18.AttachmentSupport = (doc.getObject("YZ_Plane"), [""])
sketch18.MapMode = "FlatFace"
sketch18.AttachmentOffset = App.Placement(V(0, 0, 37.2), App.Rotation())
sketch18.addGeometry([
    Part.ArcOfCircle(Part.Circle(V(4, 15, 0), V(0, 0, 1), 2), math.radians(90), math.radians(270)),
    Part.LineSegment(V(4, 13, 0), V(10, 13, 0)),
    Part.ArcOfCircle(Part.Circle(V(10, 15, 0), V(0, 0, 1), 2), math.radians(-90), math.radians(90)),
    Part.LineSegment(V(10, 17, 0), V(4, 17, 0)),
], False)
sketch18.addConstraint([
    Sketcher.Constraint("Tangent", 0, 2, 1, 1),
    Sketcher.Constraint("Tangent", 1, 2, 2, 1),
    Sketcher.Constraint("Tangent", 2, 2, 3, 1),
    Sketcher.Constraint("Tangent", 3, 2, 0, 1),
    Sketcher.Constraint("Horizontal", 1),
    Sketcher.Constraint("Horizontal", 3),
    Sketcher.Constraint("Radius", 0, 2.0),
    Sketcher.Constraint("DistanceX", 1, 1, 1, 2, 6.0),
    Sketcher.Constraint("DistanceX", -1, 1, 0, 3, 4.0),
    Sketcher.Constraint("DistanceY", -1, 1, 0, 3, 15.0),
])
pocket15 = body.newObject("PartDesign::Pocket", "Pocket014")
pocket15.Profile = sketch18
pocket15.Length = 1.8

# Sketch on YZ plane
sketch19 = body.newObject("Sketcher::SketchObject", "Sketch018")
sketch19.AttachmentSupport = (doc.getObject("YZ_Plane"), [""])
sketch19.MapMode = "FlatFace"
sketch19.AttachmentOffset = App.Placement(V(0, 0, 37.2), App.Rotation())
sketch19.addGeometry([
    Part.ArcOfCircle(Part.Circle(V(4, 22, 0), V(0, 0, 1), 2), math.radians(90), math.radians(270)),
    Part.LineSegment(V(4, 20, 0), V(10, 20, 0)),
    Part.ArcOfCircle(Part.Circle(V(10, 22, 0), V(0, 0, 1), 2), math.radians(-90), math.radians(90)),
    Part.LineSegment(V(10, 24, 0), V(4, 24, 0)),
], False)
sketch19.addConstraint([
    Sketcher.Constraint("Tangent", 0, 2, 1, 1),
    Sketcher.Constraint("Tangent", 1, 2, 2, 1),
    Sketcher.Constraint("Tangent", 2, 2, 3, 1),
    Sketcher.Constraint("Tangent", 3, 2, 0, 1),
    Sketcher.Constraint("Horizontal", 1),
    Sketcher.Constraint("Horizontal", 3),
    Sketcher.Constraint("Radius", 0, 2.0),
    Sketcher.Constraint("DistanceX", 1, 1, 1, 2, 6.0),
    Sketcher.Constraint("DistanceX", -1, 1, 0, 3, 4.0),
    Sketcher.Constraint("DistanceY", -1, 1, 0, 3, 22.0),
])
pocket16 = body.newObject("PartDesign::Pocket", "Pocket015")
pocket16.Profile = sketch19
pocket16.Length = 1.8

# Sketch on YZ plane
sketch20 = body.newObject("Sketcher::SketchObject", "Sketch019")
sketch20.AttachmentSupport = (doc.getObject("YZ_Plane"), [""])
sketch20.MapMode = "FlatFace"
sketch20.AttachmentOffset = App.Placement(V(0, 0, 37.2), App.Rotation())
sketch20.addGeometry([
    Part.ArcOfCircle(Part.Circle(V(4, 29, 0), V(0, 0, 1), 2), math.radians(90), math.radians(270)),
    Part.LineSegment(V(4, 27, 0), V(10, 27, 0)),
    Part.ArcOfCircle(Part.Circle(V(10, 29, 0), V(0, 0, 1), 2), math.radians(-90), math.radians(90)),
    Part.LineSegment(V(10, 31, 0), V(4, 31, 0)),
], False)
sketch20.addConstraint([
    Sketcher.Constraint("Tangent", 0, 2, 1, 1),
    Sketcher.Constraint("Tangent", 1, 2, 2, 1),
    Sketcher.Constraint("Tangent", 2, 2, 3, 1),
    Sketcher.Constraint("Tangent", 3, 2, 0, 1),
    Sketcher.Constraint("Horizontal", 1),
    Sketcher.Constraint("Horizontal", 3),
    Sketcher.Constraint("Radius", 0, 2.0),
    Sketcher.Constraint("DistanceX", 1, 1, 1, 2, 6.0),
    Sketcher.Constraint("DistanceX", -1, 1, 0, 3, 4.0),
    Sketcher.Constraint("DistanceY", -1, 1, 0, 3, 29.0),
])
pocket17 = body.newObject("PartDesign::Pocket", "Pocket016")
pocket17.Profile = sketch20
pocket17.Length = 1.8

# Sketch on YZ plane
sketch21 = body.newObject("Sketcher::SketchObject", "Sketch020")
sketch21.AttachmentSupport = (doc.getObject("YZ_Plane"), [""])
sketch21.MapMode = "FlatFace"
sketch21.AttachmentOffset = App.Placement(V(0, 0, 37.2), App.Rotation())
sketch21.addGeometry([
    Part.ArcOfCircle(Part.Circle(V(4, 36, 0), V(0, 0, 1), 2), math.radians(90), math.radians(270)),
    Part.LineSegment(V(4, 34, 0), V(10, 34, 0)),
    Part.ArcOfCircle(Part.Circle(V(10, 36, 0), V(0, 0, 1), 2), math.radians(-90), math.radians(90)),
    Part.LineSegment(V(10, 38, 0), V(4, 38, 0)),
], False)
sketch21.addConstraint([
    Sketcher.Constraint("Tangent", 0, 2, 1, 1),
    Sketcher.Constraint("Tangent", 1, 2, 2, 1),
    Sketcher.Constraint("Tangent", 2, 2, 3, 1),
    Sketcher.Constraint("Tangent", 3, 2, 0, 1),
    Sketcher.Constraint("Horizontal", 1),
    Sketcher.Constraint("Horizontal", 3),
    Sketcher.Constraint("Radius", 0, 2.0),
    Sketcher.Constraint("DistanceX", 1, 1, 1, 2, 6.0),
    Sketcher.Constraint("DistanceX", -1, 1, 0, 3, 4.0),
    Sketcher.Constraint("DistanceY", -1, 1, 0, 3, 36.0),
])
pocket18 = body.newObject("PartDesign::Pocket", "Pocket017")
pocket18.Profile = sketch21
pocket18.Length = 1.8
doc.recompute()

mirrored2 = body.newObject("PartDesign::Mirrored", "Mirrored001")
mirrored2.Originals = [pocket14, pocket15, pocket16, pocket17, pocket18]
mirrored2.MirrorPlane = (doc.getObject("XZ_Plane"), [""])
body.Tip = mirrored2

# Sketch on XZ plane
sketch22 = body.newObject("Sketcher::SketchObject", "Sketch021")
sketch22.AttachmentSupport = (doc.getObject("XZ_Plane"), [""])
sketch22.MapMode = "FlatFace"
sketch22.AttachmentOffset = App.Placement(V(0, 0, -14.5), App.Rotation())
add_polygon(sketch22, [(-33.8, 71), (-33.8, 26), (-32, 26), (-32, 71)])  # lines 0-3
add_polygon(sketch22, [(32, 71), (32, 26), (33.8, 26), (33.8, 71)])  # lines 4-7
sketch22.addConstraint([
    Sketcher.Constraint("Vertical", 0),
    Sketcher.Constraint("Horizontal", 1),
    Sketcher.Constraint("Vertical", 2),
    Sketcher.Constraint("Horizontal", 3),
    Sketcher.Constraint("Vertical", 4),
    Sketcher.Constraint("Horizontal", 5),
    Sketcher.Constraint("Vertical", 6),
    Sketcher.Constraint("Horizontal", 7),
    Sketcher.Constraint("Symmetric", 1, 2, 4, 2, -2),
    Sketcher.Constraint("Symmetric", 3, 2, 6, 2, -2),
    Sketcher.Constraint("DistanceY", 0, 2, 0, 1, 45.0),
    Sketcher.Constraint("DistanceX", 1, 1, 1, 2, 1.8),
    Sketcher.Constraint("DistanceY", -1, 1, 0, 2, 26.0),
    Sketcher.Constraint("DistanceX", 1, 2, -1, 1, 32.0),
])
pad4 = body.newObject("PartDesign::Pad", "Pad003")
pad4.Profile = sketch22
pad4.Length = 1

# Sketch on XZ plane
sketch23 = body.newObject("Sketcher::SketchObject", "Sketch022")
sketch23.AttachmentSupport = (doc.getObject("XZ_Plane"), [""])
sketch23.MapMode = "FlatFace"
sketch23.AttachmentOffset = App.Placement(V(0, 0, 14.5), App.Rotation())
add_polygon(sketch23, [(33.8, 71), (33.8, 26), (32, 26), (32, 71)])  # lines 0-3
add_polygon(sketch23, [(-32, 71), (-32, 26), (-33.8, 26), (-33.8, 71)])  # lines 4-7
sketch23.addConstraint([
    Sketcher.Constraint("Vertical", 0),
    Sketcher.Constraint("Horizontal", 1),
    Sketcher.Constraint("Vertical", 2),
    Sketcher.Constraint("Horizontal", 3),
    Sketcher.Constraint("Vertical", 4),
    Sketcher.Constraint("Horizontal", 5),
    Sketcher.Constraint("Vertical", 6),
    Sketcher.Constraint("Horizontal", 7),
    Sketcher.Constraint("Symmetric", 1, 2, 4, 2, -2),
    Sketcher.Constraint("Symmetric", 3, 2, 6, 2, -2),
    Sketcher.Constraint("DistanceY", 0, 2, 0, 1, 45.0),
    Sketcher.Constraint("DistanceX", 1, 2, 1, 1, 1.8),
    Sketcher.Constraint("DistanceY", -1, 1, 0, 2, 26.0),
    Sketcher.Constraint("DistanceX", -1, 1, 1, 2, 32.0),
])
pad5 = body.newObject("PartDesign::Pad", "Pad004")
pad5.Profile = sketch23
pad5.Length = 1
pad5.Reversed = True

# Sketch on YZ plane
sketch24 = body.newObject("Sketcher::SketchObject", "Sketch023")
sketch24.AttachmentSupport = (doc.getObject("YZ_Plane"), [""])
sketch24.MapMode = "FlatFace"
sketch24.AttachmentOffset = App.Placement(V(0, 0, 20.4), App.Rotation())
add_polygon(sketch24, [(16.5, 56.2), (27, 65.7), (27, 66.7), (16.5, 66.7)])  # lines 0-3
add_polygon(sketch24, [(16, 12.8), (16, 1.8), (27, 11.8), (27, 12.8)])  # lines 4-7
sketch24.addConstraint([
    Sketcher.Constraint("Vertical", 1),
    Sketcher.Constraint("Horizontal", 2),
    Sketcher.Constraint("Vertical", 3),
    Sketcher.Constraint("Vertical", 4),
    Sketcher.Constraint("Vertical", 6),
    Sketcher.Constraint("Horizontal", 7),
    Sketcher.Constraint("Vertical", 1, 2, 5, 2),
    Sketcher.Constraint("Equal", 2, 3),
    Sketcher.Constraint("Equal", 7, 4),
    Sketcher.Constraint("Equal", 1, 6),
    Sketcher.Constraint("DistanceY", 1, 1, 1, 2, 1.0),
    Sketcher.Constraint("DistanceX", 2, 2, 2, 1, 10.5),
    Sketcher.Constraint("DistanceX", -1, 1, 0, 2, 27.0),
    Sketcher.Constraint("DistanceY", -1, 1, 0, 2, 65.7),
    Sketcher.Constraint("DistanceY", -1, 1, 5, 2, 11.8),
    Sketcher.Constraint("Distance", 5, 14.882331),
])
pad6 = body.newObject("PartDesign::Pad", "Pad005")
pad6.Profile = sketch24
pad6.Length = 2
pad6.Midplane = True
doc.recompute()

mirrored3 = body.newObject("PartDesign::Mirrored", "Mirrored002")
mirrored3.Originals = [pad6]
mirrored3.MirrorPlane = (doc.getObject("YZ_Plane"), [""])
body.Tip = mirrored3
doc.recompute()

chamfer = body.newObject("PartDesign::Chamfer", "Chamfer")
chamfer.Base = (mirrored3, edges_at(mirrored3, [
    (32.9, 14.5, 26),
    (-32.9, 14.5, 26),
    (32.9, -14.5, 26),
    (-32.9, -14.5, 26),
]))
chamfer.Size = 0.99
doc.recompute()

fillet = body.newObject("PartDesign::Fillet", "Fillet")
fillet.Base = (chamfer, edges_at(chamfer, [
    (-37.2, -17, 43),
    (-37.2, 17, 43),
    (37.2, 17, 43),
    (37.2, -17, 43),
]))
fillet.Radius = 2
doc.recompute()

chamfer2 = body.newObject("PartDesign::Chamfer", "Chamfer001")
chamfer2.Base = (fillet, edges_at(fillet, [
    (0, 17, 0),
    (37.2, 0, 0),
    (0, -17, 0),
    (-37.2, 0, 0),
]))
chamfer2.Size = 1
doc.recompute()

chamfer3 = body.newObject("PartDesign::Chamfer", "Chamfer002")
chamfer3.Base = (chamfer2, edges_at(chamfer2, [
    (-21.4, 22, 66.613),
    (19.4, 22, 66.613),
    (19.4, 22, 12.613),
    (-21.4, 22, 12.613),
]))
chamfer3.Size = 1
doc.recompute()

chamfer4 = body.newObject("PartDesign::Chamfer", "Chamfer003")
chamfer4.Base = (chamfer3, edges_at(chamfer3, [
    (-19.4, 22, 66.613),
    (21.4, 22, 66.613),
    (21.4, 22, 12.613),
    (-19.4, 22, 12.613),
]))
chamfer4.Size = 1

doc.recompute()
